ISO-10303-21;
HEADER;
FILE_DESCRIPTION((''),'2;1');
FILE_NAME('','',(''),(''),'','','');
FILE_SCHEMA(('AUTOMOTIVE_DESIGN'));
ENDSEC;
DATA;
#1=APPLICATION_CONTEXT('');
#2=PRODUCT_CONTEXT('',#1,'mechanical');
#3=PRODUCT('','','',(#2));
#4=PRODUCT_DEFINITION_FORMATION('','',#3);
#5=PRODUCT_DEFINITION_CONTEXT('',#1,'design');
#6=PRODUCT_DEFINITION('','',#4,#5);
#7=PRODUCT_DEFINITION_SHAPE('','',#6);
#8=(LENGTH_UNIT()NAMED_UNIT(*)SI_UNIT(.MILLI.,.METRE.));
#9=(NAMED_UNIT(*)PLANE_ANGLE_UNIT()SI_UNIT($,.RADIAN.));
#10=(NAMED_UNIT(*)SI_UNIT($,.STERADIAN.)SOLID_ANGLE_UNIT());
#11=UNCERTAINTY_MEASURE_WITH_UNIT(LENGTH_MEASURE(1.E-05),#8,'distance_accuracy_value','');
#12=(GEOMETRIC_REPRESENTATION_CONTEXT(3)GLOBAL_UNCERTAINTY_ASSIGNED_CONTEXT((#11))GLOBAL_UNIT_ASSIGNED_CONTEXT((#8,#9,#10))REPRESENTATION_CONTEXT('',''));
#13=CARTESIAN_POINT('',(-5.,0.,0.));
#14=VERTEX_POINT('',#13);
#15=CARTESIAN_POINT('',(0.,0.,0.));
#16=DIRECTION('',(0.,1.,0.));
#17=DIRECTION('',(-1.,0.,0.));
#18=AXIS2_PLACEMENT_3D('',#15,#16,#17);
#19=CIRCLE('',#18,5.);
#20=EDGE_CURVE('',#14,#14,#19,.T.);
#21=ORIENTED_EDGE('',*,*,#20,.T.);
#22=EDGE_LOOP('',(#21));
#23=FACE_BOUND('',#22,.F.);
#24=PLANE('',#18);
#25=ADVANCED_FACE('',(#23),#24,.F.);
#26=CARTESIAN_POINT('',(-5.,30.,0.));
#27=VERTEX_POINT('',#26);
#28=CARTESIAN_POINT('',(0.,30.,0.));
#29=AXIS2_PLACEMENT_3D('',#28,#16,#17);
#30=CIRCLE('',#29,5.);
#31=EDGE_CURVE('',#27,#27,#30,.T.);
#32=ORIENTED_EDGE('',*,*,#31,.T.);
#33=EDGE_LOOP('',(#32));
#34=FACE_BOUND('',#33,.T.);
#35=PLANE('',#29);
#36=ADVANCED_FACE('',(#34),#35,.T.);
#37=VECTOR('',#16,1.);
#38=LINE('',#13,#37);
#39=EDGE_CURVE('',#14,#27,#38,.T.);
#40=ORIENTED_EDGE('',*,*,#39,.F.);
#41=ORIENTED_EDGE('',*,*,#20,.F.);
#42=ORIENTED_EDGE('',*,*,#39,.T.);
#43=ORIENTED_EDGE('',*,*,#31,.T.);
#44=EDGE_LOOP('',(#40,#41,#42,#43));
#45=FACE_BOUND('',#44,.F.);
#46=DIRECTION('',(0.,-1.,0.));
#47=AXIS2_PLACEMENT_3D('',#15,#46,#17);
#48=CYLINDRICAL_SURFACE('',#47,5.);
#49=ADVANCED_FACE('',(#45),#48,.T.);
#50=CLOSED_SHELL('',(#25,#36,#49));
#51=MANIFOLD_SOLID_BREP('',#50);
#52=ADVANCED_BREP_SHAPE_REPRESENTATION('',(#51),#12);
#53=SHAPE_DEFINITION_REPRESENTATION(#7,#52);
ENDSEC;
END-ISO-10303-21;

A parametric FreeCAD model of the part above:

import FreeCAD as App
import Part
import Sketcher
Q = App.Units.Quantity

doc = App.newDocument("Part")
params = doc.addObject("Spreadsheet::Sheet", "Params")
for row, (alias, value) in enumerate([
    ("sketch1_diameter", "10 mm"),
    ("pad1_length", "30 mm"),
], start=1):
    params.set(f"A{row}", alias)
    params.set(f"B{row}", "=" + value)
    params.setAlias(f"B{row}", alias)

body = doc.addObject("PartDesign::Body", "Body")

# Sketch on XZ plane
sketch1 = body.newObject("Sketcher::SketchObject", "Sketch")
sketch1.AttachmentSupport = (doc.getObject("XZ_Plane"), [""])
sketch1.MapMode = "FlatFace"
sketch1.addGeometry(Part.Circle(App.Vector(0, 0, 0), App.Vector(0, 0, 1), 5), False)
sketch1.addConstraint([
    Sketcher.Constraint("Coincident", 0, 3, -1, 1),
    Sketcher.Constraint("Diameter", 0, Q("10 mm")),
])
sketch1.setExpression("Constraints[1]", "Params.sketch1_diameter")
pad1 = body.newObject("PartDesign::Pad", "Pad")
pad1.Profile = sketch1
pad1.setExpression("Length", "Params.pad1_length")
pad1.Reversed = True

doc.recompute()
